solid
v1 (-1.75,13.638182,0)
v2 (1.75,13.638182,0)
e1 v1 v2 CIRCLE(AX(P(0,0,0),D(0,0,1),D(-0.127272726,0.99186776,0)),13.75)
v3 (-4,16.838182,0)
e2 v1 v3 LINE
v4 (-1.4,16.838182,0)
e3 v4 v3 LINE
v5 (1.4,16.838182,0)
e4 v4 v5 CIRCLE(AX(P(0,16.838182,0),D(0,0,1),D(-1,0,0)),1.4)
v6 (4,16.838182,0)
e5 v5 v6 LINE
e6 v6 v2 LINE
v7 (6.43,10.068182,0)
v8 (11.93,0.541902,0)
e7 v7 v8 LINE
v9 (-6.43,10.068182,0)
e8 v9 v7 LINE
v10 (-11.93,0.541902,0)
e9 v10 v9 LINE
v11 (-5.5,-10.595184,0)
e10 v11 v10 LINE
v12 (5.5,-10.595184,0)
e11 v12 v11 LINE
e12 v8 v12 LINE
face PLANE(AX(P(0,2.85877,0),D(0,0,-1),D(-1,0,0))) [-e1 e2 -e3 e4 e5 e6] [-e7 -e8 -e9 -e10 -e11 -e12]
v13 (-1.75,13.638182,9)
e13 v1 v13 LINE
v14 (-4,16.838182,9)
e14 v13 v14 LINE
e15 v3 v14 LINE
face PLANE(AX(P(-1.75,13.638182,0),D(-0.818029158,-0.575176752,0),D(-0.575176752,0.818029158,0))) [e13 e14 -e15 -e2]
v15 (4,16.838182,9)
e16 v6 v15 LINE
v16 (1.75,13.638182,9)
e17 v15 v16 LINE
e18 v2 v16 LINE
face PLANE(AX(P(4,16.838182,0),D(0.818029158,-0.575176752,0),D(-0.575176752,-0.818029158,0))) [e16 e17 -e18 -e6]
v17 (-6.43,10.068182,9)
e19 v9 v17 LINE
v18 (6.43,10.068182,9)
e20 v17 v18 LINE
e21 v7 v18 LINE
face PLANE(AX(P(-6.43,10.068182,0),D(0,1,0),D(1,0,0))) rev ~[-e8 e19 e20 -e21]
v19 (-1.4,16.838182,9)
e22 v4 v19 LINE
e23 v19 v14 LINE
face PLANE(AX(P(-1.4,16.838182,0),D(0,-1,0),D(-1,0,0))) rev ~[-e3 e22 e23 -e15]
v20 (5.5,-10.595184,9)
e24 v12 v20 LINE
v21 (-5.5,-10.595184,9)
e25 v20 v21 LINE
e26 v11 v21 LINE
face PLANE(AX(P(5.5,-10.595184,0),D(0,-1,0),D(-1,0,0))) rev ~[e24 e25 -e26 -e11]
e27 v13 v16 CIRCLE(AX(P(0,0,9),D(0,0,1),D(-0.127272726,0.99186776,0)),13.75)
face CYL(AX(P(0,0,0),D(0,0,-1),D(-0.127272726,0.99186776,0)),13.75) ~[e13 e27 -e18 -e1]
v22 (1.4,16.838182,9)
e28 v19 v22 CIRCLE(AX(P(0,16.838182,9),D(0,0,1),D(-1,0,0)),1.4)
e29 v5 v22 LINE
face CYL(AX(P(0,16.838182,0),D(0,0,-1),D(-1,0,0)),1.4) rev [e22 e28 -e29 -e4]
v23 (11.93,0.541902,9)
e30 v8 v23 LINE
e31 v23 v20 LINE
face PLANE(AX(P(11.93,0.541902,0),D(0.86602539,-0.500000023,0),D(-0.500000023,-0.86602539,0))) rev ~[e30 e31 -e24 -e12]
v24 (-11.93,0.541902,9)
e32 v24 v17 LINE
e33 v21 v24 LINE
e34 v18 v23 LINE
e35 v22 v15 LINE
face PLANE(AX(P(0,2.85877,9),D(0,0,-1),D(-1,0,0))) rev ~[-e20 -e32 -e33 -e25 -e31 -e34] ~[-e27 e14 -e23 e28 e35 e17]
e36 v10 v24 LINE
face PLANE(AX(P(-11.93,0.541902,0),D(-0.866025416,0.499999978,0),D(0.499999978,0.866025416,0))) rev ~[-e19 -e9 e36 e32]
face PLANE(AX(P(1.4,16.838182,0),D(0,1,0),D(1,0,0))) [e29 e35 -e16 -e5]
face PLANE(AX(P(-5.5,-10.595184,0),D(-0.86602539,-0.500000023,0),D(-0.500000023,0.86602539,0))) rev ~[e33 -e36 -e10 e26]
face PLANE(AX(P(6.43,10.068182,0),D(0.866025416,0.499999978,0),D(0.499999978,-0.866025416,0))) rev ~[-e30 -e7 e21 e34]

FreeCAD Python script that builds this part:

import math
import FreeCAD as App
import Part
import Sketcher
from FreeCAD import Vector
Q = App.Units.Quantity

doc = App.newDocument("Part")
params = doc.addObject("Spreadsheet::Sheet", "Params")
for row, (alias, value) in enumerate([
    ("sketch1_radius", "1.4 mm"),
    ("sketch1_width", "11 mm"),
    ("sketch1_radius2", "13.75 mm"),
    ("sketch1_length", "11 mm"),
    ("sketch1_width2", "2.6 mm"),
    ("pad1_length", "9 mm"),
], start=1):
    params.set(f"A{row}", alias)
    params.set(f"B{row}", "=" + value)
    params.setAlias(f"B{row}", alias)

body = doc.addObject("PartDesign::Body", "Body")

# Sketch on XY plane
sketch1 = body.newObject("Sketcher::SketchObject", "Sketch")
sketch1.AttachmentSupport = (doc.getObject("XY_Plane"), [""])
sketch1.MapMode = "FlatFace"
sketch1.addGeometry([
    Part.LineSegment(Vector(-4, 16.8, 0), Vector(-1.8, 13.6, 0)),  # 0
    Part.ArcOfCircle(Part.Circle(Vector(0, 0, 0), Vector(0, 0, 1), 13.8), math.radians(97), math.radians(443)),  # 1
    Part.LineSegment(Vector(1.8, 13.6, 0), Vector(4, 16.8, 0)),  # 2
    Part.LineSegment(Vector(4, 16.8, 0), Vector(1.4, 16.8, 0)),  # 3
    Part.ArcOfCircle(Part.Circle(Vector(0, 16.8, 0), Vector(0, 0, 1), 1.4), math.radians(180), math.radians(360)),  # 4
    Part.LineSegment(Vector(-1.4, 16.8, 0), Vector(-4, 16.8, 0)),  # 5
    Part.LineSegment(Vector(-6.4, 10.1, 0), Vector(6.4, 10.1, 0)),  # 6
    Part.LineSegment(Vector(6.4, 10.1, 0), Vector(11.9, 0.5, 0)),  # 7
    Part.LineSegment(Vector(11.9, 0.5, 0), Vector(5.5, -10.6, 0)),  # 8
    Part.LineSegment(Vector(5.5, -10.6, 0), Vector(-5.5, -10.6, 0)),  # 9
    Part.LineSegment(Vector(-5.5, -10.6, 0), Vector(-11.9, 0.5, 0)),  # 10
    Part.LineSegment(Vector(-11.9, 0.5, 0), Vector(-6.4, 10.1, 0)),  # 11
], False)
sketch1.addConstraint([
    Sketcher.Constraint("Coincident", 0, 2, 1, 1),
    Sketcher.Constraint("Coincident", 1, 2, 2, 1),
    Sketcher.Constraint("Coincident", 2, 2, 3, 1),
    Sketcher.Constraint("Coincident", 3, 2, 4, 2),
    Sketcher.Constraint("Coincident", 4, 1, 5, 1),
    Sketcher.Constraint("Coincident", 5, 2, 0, 1),
    Sketcher.Constraint("Coincident", 6, 2, 7, 1),
    Sketcher.Constraint("Coincident", 7, 2, 8, 1),
    Sketcher.Constraint("Coincident", 8, 2, 9, 1),
    Sketcher.Constraint("Coincident", 9, 2, 10, 1),
    Sketcher.Constraint("Coincident", 10, 2, 11, 1),
    Sketcher.Constraint("Coincident", 11, 2, 6, 1),
    Sketcher.Constraint("Horizontal", 3),
    Sketcher.Constraint("Horizontal", 5),
    Sketcher.Constraint("Horizontal", 6),
    Sketcher.Constraint("Horizontal", 9),
    Sketcher.Constraint("Coincident", 1, 3, -1, 1),
    Sketcher.Constraint("Symmetric", 3, 2, 4, 1, -2),
    Sketcher.Constraint("Symmetric", 7, 2, 10, 2, -2),
    Sketcher.Constraint("Parallel", 7, 10),
    Sketcher.Constraint("Parallel", 8, 11),
    Sketcher.Constraint("Horizontal", 0, 2, 1, 2),
    Sketcher.Constraint("Horizontal", 4, 3, 2, 2),
    Sketcher.Constraint("Equal", 3, 5),
    Sketcher.Constraint("Equal", 8, 10),
    Sketcher.Constraint("Radius", 4, 1.4),
    Sketcher.Constraint("DistanceX", 9, 2, 9, 1, 11.0),
    Sketcher.Constraint("Angle", 7, Q("-60.000001 deg")),
    Sketcher.Constraint("Radius", 1, 13.75),
    Sketcher.Constraint("Distance", 7, 11.0),
    Sketcher.Constraint("DistanceX", 3, 2, 3, 1, 2.6),
    Sketcher.Constraint("DistanceX", 6, 1, 6, 2, 12.86),
    Sketcher.Constraint("DistanceY", 0, 2, 4, 3, 3.2),
    Sketcher.Constraint("DistanceX", 0, 2, 1, 2, 3.5),
    Sketcher.Constraint("DistanceY", 6, 2, 1, 2, 3.57),
])
sketch1.setExpression("Constraints[25]", "Params.sketch1_radius")
sketch1.setExpression("Constraints[26]", "Params.sketch1_width")
sketch1.setExpression("Constraints[28]", "Params.sketch1_radius2")
sketch1.setExpression("Constraints[29]", "Params.sketch1_length")
sketch1.setExpression("Constraints[30]", "Params.sketch1_width2")
pad1 = body.newObject("PartDesign::Pad", "Pad")
pad1.Profile = sketch1
pad1.setExpression("Length", "Params.pad1_length")

doc.recompute()
